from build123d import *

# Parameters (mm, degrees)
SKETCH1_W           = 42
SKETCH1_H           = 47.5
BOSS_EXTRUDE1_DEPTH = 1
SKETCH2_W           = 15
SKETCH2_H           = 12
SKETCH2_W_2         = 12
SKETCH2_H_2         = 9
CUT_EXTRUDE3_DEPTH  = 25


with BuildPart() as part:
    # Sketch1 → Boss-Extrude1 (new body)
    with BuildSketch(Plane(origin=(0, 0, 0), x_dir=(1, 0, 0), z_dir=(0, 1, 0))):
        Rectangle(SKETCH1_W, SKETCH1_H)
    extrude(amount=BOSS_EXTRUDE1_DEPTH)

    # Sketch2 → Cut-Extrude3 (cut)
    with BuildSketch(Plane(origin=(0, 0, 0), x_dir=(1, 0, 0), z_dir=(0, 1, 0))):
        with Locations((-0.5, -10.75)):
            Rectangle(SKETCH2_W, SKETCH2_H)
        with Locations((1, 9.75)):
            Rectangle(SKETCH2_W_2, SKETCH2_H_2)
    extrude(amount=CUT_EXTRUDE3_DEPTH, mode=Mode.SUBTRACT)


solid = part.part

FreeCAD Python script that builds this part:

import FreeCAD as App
import Part
import Sketcher
from FreeCAD import Vector
Q = App.Units.Quantity


def add_polygon(sketch, points):
    """Adds a closed chain of lines whose ends are joined by coincident constraints."""
    first, n = sketch.GeometryCount, len(points)
    for a, b in zip(points, points[1:] + points[:1]):
        sketch.addGeometry(Part.LineSegment(App.Vector(*a, 0), App.Vector(*b, 0)), False)
    for i in range(n):
        sketch.addConstraint(Sketcher.Constraint("Coincident", first + i, 2, first + (i + 1) % n, 1))

doc = App.newDocument("Part")
params = doc.addObject("Spreadsheet::Sheet", "Params")
for row, (alias, value) in enumerate([
    ("sketch1_width", "42 mm"),
    ("sketch1_height", "47.5 mm"),
    ("pad1_length", "1 mm"),
    ("sketch2_width", "15 mm"),
    ("sketch2_width2", "12 mm"),
    ("sketch2_height", "9 mm"),
    ("pocket1_length", "25 mm"),
], start=1):
    params.set(f"A{row}", alias)
    params.set(f"B{row}", "=" + value)
    params.setAlias(f"B{row}", alias)

body = doc.addObject("PartDesign::Body", "Body")

sketch1 = body.newObject("Sketcher::SketchObject", "Sketch")
sketch1.AttachmentSupport = (doc.getObject("XZ_Plane"), [""])
sketch1.MapMode = "FlatFace"
add_polygon(sketch1, [(-21, -23.75), (-21, 23.75), (21, 23.75), (21, -23.75)])
sketch1.addConstraint([
    Sketcher.Constraint("Vertical", 0),
    Sketcher.Constraint("Horizontal", 1),
    Sketcher.Constraint("Vertical", 2),
    Sketcher.Constraint("Horizontal", 3),
    Sketcher.Constraint("Symmetric", 0, 2, 2, 2, -1, 1),
    Sketcher.Constraint("DistanceX", 1, 1, 1, 2, Q("42 mm")),
    Sketcher.Constraint("DistanceY", 0, 1, 0, 2, Q("47.5 mm")),
])
sketch1.setExpression("Constraints[9]", "Params.sketch1_width")
sketch1.setExpression("Constraints[10]", "Params.sketch1_height")
pad1 = body.newObject("PartDesign::Pad", "Pad")
pad1.Profile = sketch1
pad1.setExpression("Length", "Params.pad1_length")
pad1.Reversed = True

sketch2 = body.newObject("Sketcher::SketchObject", "Sketch001")
sketch2.AttachmentSupport = (doc.getObject("XZ_Plane"), [""])
sketch2.MapMode = "FlatFace"
add_polygon(sketch2, [(-8, 4.75), (-8, 16.75), (7, 16.75), (7, 4.75)])
add_polygon(sketch2, [(-5, -14.25), (-5, -5.25), (7, -5.25), (7, -14.25)])
sketch2.addConstraint([
    Sketcher.Constraint("Vertical", 0),
    Sketcher.Constraint("Horizontal", 1),
    Sketcher.Constraint("Vertical", 2),
    Sketcher.Constraint("Horizontal", 3),
    Sketcher.Constraint("Vertical", 4),
    Sketcher.Constraint("Horizontal", 5),
    Sketcher.Constraint("Vertical", 6),
    Sketcher.Constraint("Horizontal", 7),
    Sketcher.Constraint("Vertical", 2, 2, 5, 2),
    Sketcher.Constraint("Equal", 7, 0),
    Sketcher.Constraint("DistanceX", 1, 1, 1, 2, Q("15 mm")),
    Sketcher.Constraint("DistanceX", 5, 1, 5, 2, Q("12 mm")),
    Sketcher.Constraint("DistanceY", 4, 1, 4, 2, Q("9 mm")),
    Sketcher.Constraint("DistanceX", 0, 2, -1, 1, Q("8 mm")),
    Sketcher.Constraint("DistanceY", 4, 2, 3, 2, Q("10 mm")),
    Sketcher.Constraint("DistanceY", -1, 1, 0, 2, Q("16.75 mm")),
])
sketch2.setExpression("Constraints[18]", "Params.sketch2_width")
sketch2.setExpression("Constraints[19]", "Params.sketch2_width2")
sketch2.setExpression("Constraints[20]", "Params.sketch2_height")
pocket1 = body.newObject("PartDesign::Pocket", "Pocket")
pocket1.Profile = sketch2
pocket1.setExpression("Length", "Params.pocket1_length")

doc.recompute()
